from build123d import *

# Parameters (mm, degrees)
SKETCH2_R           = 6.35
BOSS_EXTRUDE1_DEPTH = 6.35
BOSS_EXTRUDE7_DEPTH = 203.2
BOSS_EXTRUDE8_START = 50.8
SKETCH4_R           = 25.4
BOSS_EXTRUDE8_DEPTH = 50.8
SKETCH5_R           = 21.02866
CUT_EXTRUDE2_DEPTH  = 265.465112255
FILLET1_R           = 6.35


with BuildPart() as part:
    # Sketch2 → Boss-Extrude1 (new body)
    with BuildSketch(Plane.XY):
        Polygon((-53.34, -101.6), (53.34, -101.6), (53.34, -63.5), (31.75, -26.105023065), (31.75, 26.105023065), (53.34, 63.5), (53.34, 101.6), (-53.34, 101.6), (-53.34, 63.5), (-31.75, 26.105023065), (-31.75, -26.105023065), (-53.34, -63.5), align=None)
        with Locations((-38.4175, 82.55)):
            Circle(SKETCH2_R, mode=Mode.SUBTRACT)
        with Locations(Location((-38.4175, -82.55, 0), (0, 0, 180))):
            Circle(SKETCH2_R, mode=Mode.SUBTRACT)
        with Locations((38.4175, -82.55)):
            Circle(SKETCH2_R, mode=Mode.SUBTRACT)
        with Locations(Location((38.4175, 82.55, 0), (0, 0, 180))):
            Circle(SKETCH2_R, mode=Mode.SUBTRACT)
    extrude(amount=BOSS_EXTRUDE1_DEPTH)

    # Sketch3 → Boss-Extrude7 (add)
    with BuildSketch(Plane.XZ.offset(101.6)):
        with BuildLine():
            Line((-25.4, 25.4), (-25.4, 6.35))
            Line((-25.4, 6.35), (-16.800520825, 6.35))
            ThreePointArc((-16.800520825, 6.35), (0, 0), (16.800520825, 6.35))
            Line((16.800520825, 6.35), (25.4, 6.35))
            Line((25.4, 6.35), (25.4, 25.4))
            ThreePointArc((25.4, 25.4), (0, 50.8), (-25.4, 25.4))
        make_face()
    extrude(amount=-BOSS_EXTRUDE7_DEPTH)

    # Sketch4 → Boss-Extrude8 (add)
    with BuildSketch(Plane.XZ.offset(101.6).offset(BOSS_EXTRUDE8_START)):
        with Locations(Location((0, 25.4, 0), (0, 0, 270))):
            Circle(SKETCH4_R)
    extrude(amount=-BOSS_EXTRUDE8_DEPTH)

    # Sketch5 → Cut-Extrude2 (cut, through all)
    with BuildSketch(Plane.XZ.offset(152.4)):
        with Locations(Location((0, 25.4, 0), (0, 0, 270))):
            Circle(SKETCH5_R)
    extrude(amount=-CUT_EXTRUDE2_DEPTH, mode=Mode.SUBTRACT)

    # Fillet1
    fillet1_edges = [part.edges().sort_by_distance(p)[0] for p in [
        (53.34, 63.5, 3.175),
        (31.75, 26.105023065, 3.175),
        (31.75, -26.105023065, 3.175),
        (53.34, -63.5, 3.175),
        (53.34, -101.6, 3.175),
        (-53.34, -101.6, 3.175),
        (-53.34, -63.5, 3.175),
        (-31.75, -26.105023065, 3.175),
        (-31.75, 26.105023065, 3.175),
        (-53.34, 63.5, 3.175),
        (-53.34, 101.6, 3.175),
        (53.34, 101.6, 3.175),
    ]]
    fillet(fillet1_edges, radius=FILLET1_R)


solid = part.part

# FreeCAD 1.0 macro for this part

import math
import FreeCAD as App
import Part
import Sketcher
from FreeCAD import Vector
Q = App.Units.Quantity


def edges_at(feature, points):
    """Names of the edges that pass closest to the given points."""
    edges = feature.Shape.Edges
    near = lambda p: min(range(len(edges)), key=lambda i: edges[i].distToShape(Part.Vertex(*p))[0])
    return sorted({f"Edge{near(p) + 1}" for p in points})


def add_polygon(sketch, points):
    """Adds a closed chain of lines whose ends are joined by coincident constraints."""
    first, n = sketch.GeometryCount, len(points)
    for a, b in zip(points, points[1:] + points[:1]):
        sketch.addGeometry(Part.LineSegment(App.Vector(*a, 0), App.Vector(*b, 0)), False)
    for i in range(n):
        sketch.addConstraint(Sketcher.Constraint("Coincident", first + i, 2, first + (i + 1) % n, 1))

doc = App.newDocument("Part")
body = doc.addObject("PartDesign::Body", "Body")

# Sketch on XY plane
sketch1 = body.newObject("Sketcher::SketchObject", "Sketch")
sketch1.AttachmentSupport = (doc.getObject("XY_Plane"), [""])
sketch1.MapMode = "FlatFace"
add_polygon(sketch1, [(-53.34, -101.6), (53.34, -101.6), (53.34, -63.5), (31.75, -26.105023), (31.75, 26.105023), (53.34, 63.5), (53.34, 101.6), (-53.34, 101.6), (-53.34, 63.5), (-31.75, 26.105023), (-31.75, -26.105023), (-53.34, -63.5)])  # lines 0-11
sketch1.addGeometry(Part.Circle(Vector(-38.4175, -82.55, 0), Vector(0, 0, 1), 6.35), False)  # 12
sketch1.addGeometry(Part.Circle(Vector(38.4175, -82.55, 0), Vector(0, 0, 1), 6.35), False)  # 13
sketch1.addGeometry(Part.Circle(Vector(-38.4175, 82.55, 0), Vector(0, 0, 1), 6.35), False)  # 14
sketch1.addGeometry(Part.Circle(Vector(38.4175, 82.55, 0), Vector(0, 0, 1), 6.35), False)  # 15
sketch1.addConstraint(Sketcher.Constraint("Horizontal", 0))
sketch1.addConstraint(Sketcher.Constraint("Vertical", 1))
sketch1.addConstraint(Sketcher.Constraint("Vertical", 3))
sketch1.addConstraint(Sketcher.Constraint("Vertical", 5))
sketch1.addConstraint(Sketcher.Constraint("Horizontal", 6))
sketch1.addConstraint(Sketcher.Constraint("Vertical", 7))
sketch1.addConstraint(Sketcher.Constraint("Vertical", 9))
sketch1.addConstraint(Sketcher.Constraint("Vertical", 11))
sketch1.addConstraint(Sketcher.Constraint("Equal", 12, 13))
sketch1.addConstraint(Sketcher.Constraint("Equal", 13, 14))
sketch1.addConstraint(Sketcher.Constraint("Equal", 14, 15))
sketch1.addConstraint(Sketcher.Constraint("Symmetric", 13, 3, 14, 3, -1, 1))
sketch1.addConstraint(Sketcher.Constraint("Symmetric", 12, 3, 15, 3, -1, 1))
sketch1.addConstraint(Sketcher.Constraint("Symmetric", 0, 2, 6, 2, -1, 1))
sketch1.addConstraint(Sketcher.Constraint("Symmetric", 2, 2, 8, 2, -1, 1))
sketch1.addConstraint(Sketcher.Constraint("Symmetric", 4, 2, 10, 2, -1, 1))
sketch1.addConstraint(Sketcher.Constraint("Symmetric", 12, 3, 13, 3, -2))
sketch1.addConstraint(Sketcher.Constraint("Symmetric", 4, 2, 7, 2, -2))
sketch1.addConstraint(Sketcher.Constraint("Parallel", 2, 8))
sketch1.addConstraint(Sketcher.Constraint("Parallel", 4, 10))
sketch1.addConstraint(Sketcher.Constraint("Horizontal", 3, 2, 8, 2))
sketch1.addConstraint(Sketcher.Constraint("Diameter", 12, Q("0.5 in")))
sketch1.addConstraint(Sketcher.Constraint("DistanceX", 0, 1, 0, 2, Q("4.2 in")))
sketch1.addConstraint(Sketcher.Constraint("DistanceY", 1, 1, 1, 2, Q("1.5 in")))
sketch1.addConstraint(Sketcher.Constraint("DistanceY", 0, 2, -1, 1, Q("4 in")))
sketch1.addConstraint(Sketcher.Constraint("Angle", 2, Q("120 deg")))
sketch1.addConstraint(Sketcher.Constraint("Distance", 2, Q("1.7 in")))
sketch1.addConstraint(Sketcher.Constraint("DistanceY", 12, 3, 14, 3, Q("6.5 in")))
sketch1.addConstraint(Sketcher.Constraint("DistanceX", 12, 3, 13, 3, Q("3.025 in")))
pad1 = body.newObject("PartDesign::Pad", "Pad")
pad1.Profile = sketch1
pad1.Length = Q("0.25 in")

# Sketch on XZ plane
sketch2 = body.newObject("Sketcher::SketchObject", "Sketch001")
sketch2.AttachmentSupport = (doc.getObject("XZ_Plane"), [""])
sketch2.MapMode = "FlatFace"
sketch2.AttachmentOffset = App.Placement(Vector(0, 0, 4 * 25.4), App.Rotation())
sketch2.addGeometry(Part.LineSegment(Vector(-25.4, 25.4, 0), Vector(-25.4, 6.35, 0)), False)
sketch2.addGeometry(Part.LineSegment(Vector(-25.4, 6.35, 0), Vector(-16.800521, 6.35, 0)), False)
sketch2.addGeometry(Part.ArcOfCircle(Part.Circle(Vector(0, 25.4, 0), Vector(0, 0, 1), 25.4), math.radians(-131.409622), math.radians(-48.590378)), False)
sketch2.addGeometry(Part.LineSegment(Vector(16.800521, 6.35, 0), Vector(25.4, 6.35, 0)), False)
sketch2.addGeometry(Part.LineSegment(Vector(25.4, 6.35, 0), Vector(25.4, 25.4, 0)), False)
sketch2.addGeometry(Part.ArcOfCircle(Part.Circle(Vector(0, 25.4, 0), Vector(0, 0, 1), 25.4), math.radians(0), math.radians(180)), False)
sketch2.addConstraint(Sketcher.Constraint("Coincident", 0, 2, 1, 1))
sketch2.addConstraint(Sketcher.Constraint("Coincident", 1, 2, 2, 1))
sketch2.addConstraint(Sketcher.Constraint("Coincident", 2, 2, 3, 1))
sketch2.addConstraint(Sketcher.Constraint("Coincident", 3, 2, 4, 1))
sketch2.addConstraint(Sketcher.Constraint("Tangent", 4, 2, 5, 1))
sketch2.addConstraint(Sketcher.Constraint("Tangent", 5, 2, 0, 1))
sketch2.addConstraint(Sketcher.Constraint("Vertical", 0))
sketch2.addConstraint(Sketcher.Constraint("Horizontal", 1))
sketch2.addConstraint(Sketcher.Constraint("Horizontal", 3))
sketch2.addConstraint(Sketcher.Constraint("Vertical", 4))
sketch2.addConstraint(Sketcher.Constraint("Coincident", 5, 3, 2, 3))
sketch2.addConstraint(Sketcher.Constraint("Equal", 2, 5))
sketch2.addConstraint(Sketcher.Constraint("Symmetric", 1, 2, 2, 2, -2))
sketch2.addConstraint(Sketcher.Constraint("Radius", 2, Q("1 in")))
sketch2.addConstraint(Sketcher.Constraint("DistanceY", -1, 1, 2, 3, Q("1 in")))
sketch2.addConstraint(Sketcher.Constraint("DistanceY", 0, 2, 0, 1, Q("0.75 in")))
pad2 = body.newObject("PartDesign::Pad", "Pad001")
pad2.Profile = sketch2
pad2.Length = Q("8 in")
pad2.Reversed = True

# Sketch on XZ plane
sketch3 = body.newObject("Sketcher::SketchObject", "Sketch002")
sketch3.AttachmentSupport = (doc.getObject("XZ_Plane"), [""])
sketch3.MapMode = "FlatFace"
sketch3.AttachmentOffset = App.Placement(Vector(0, 0, 6 * 25.4), App.Rotation())
sketch3.addGeometry(Part.Circle(Vector(0, 25.4, 0), Vector(0, 0, 1), 25.4), False)
sketch3.addConstraint(Sketcher.Constraint("PointOnObject", 0, 3, -2))
sketch3.addConstraint(Sketcher.Constraint("Diameter", 0, Q("2 in")))
sketch3.addConstraint(Sketcher.Constraint("DistanceY", -1, 1, 0, 3, Q("1 in")))
pad3 = body.newObject("PartDesign::Pad", "Pad002")
pad3.Profile = sketch3
pad3.Length = Q("2 in")
pad3.Reversed = True

# Sketch on XZ plane
sketch4 = body.newObject("Sketcher::SketchObject", "Sketch003")
sketch4.AttachmentSupport = (doc.getObject("XZ_Plane"), [""])
sketch4.MapMode = "FlatFace"
sketch4.AttachmentOffset = App.Placement(Vector(0, 0, 6 * 25.4), App.Rotation())
sketch4.addGeometry(Part.Circle(Vector(0, 25.4, 0), Vector(0, 0, 1), 21.02866), False)
sketch4.addConstraint(Sketcher.Constraint("PointOnObject", 0, 3, -2))
sketch4.addConstraint(Sketcher.Constraint("DistanceY", -1, 1, 0, 3, Q("1 in")))
sketch4.addConstraint(Sketcher.Constraint("Diameter", 0, Q("1.6558 in")))
pocket1 = body.newObject("PartDesign::Pocket", "Pocket")
pocket1.Profile = sketch4
pocket1.Type = "ThroughAll"
doc.recompute()

fillet = body.newObject("PartDesign::Fillet", "Fillet")
fillet.Base = (pocket1, edges_at(pocket1, [
    (53.34, 63.5, 3.175),
    (31.75, 26.105, 3.175),
    (31.75, -26.105, 3.175),
    (53.34, -63.5, 3.175),
    (53.34, -101.6, 3.175),
    (-53.34, -101.6, 3.175),
    (-53.34, -63.5, 3.175),
    (-31.75, -26.105, 3.175),
    (-31.75, 26.105, 3.175),
    (-53.34, 63.5, 3.175),
    (-53.34, 101.6, 3.175),
    (53.34, 101.6, 3.175),
]))
fillet.Radius = Q("0.25 in")

doc.recompute()
